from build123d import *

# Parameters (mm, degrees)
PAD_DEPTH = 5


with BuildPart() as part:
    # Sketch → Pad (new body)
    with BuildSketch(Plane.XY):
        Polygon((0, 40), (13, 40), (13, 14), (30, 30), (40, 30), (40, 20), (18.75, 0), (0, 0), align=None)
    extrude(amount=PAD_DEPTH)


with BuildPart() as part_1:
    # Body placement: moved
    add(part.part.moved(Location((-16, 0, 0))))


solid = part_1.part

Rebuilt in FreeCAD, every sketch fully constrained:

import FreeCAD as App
import Part
import Sketcher
Q = App.Units.Quantity

doc = App.newDocument("Part")
params = doc.addObject("Spreadsheet::Sheet", "Params")
for row, (alias, value) in enumerate([
    ("sketch1_width", "13 mm"),
    ("sketch1_width2", "10 mm"),
    ("sketch1_height", "40 mm"),
    ("sketch1_height2", "26 mm"),
    ("pad1_length", "5 mm"),
], start=1):
    params.set(f"A{row}", alias)
    params.set(f"B{row}", "=" + value)
    params.setAlias(f"B{row}", alias)

body = doc.addObject("PartDesign::Body", "Body")

# Sketch on XY plane
sketch1 = body.newObject("Sketcher::SketchObject", "Sketch")
sketch1.AttachmentSupport = (doc.getObject("XY_Plane"), [""])
sketch1.MapMode = "FlatFace"
sketch1.addGeometry(Part.LineSegment(App.Vector(13, 40, 0), App.Vector(0, 40, 0)), False)
sketch1.addGeometry(Part.LineSegment(App.Vector(0, 40, 0), App.Vector(0, 0, 0)), False)
sketch1.addGeometry(Part.LineSegment(App.Vector(0, 0, 0), App.Vector(18.75, 0, 0)), False)
sketch1.addGeometry(Part.LineSegment(App.Vector(18.75, 0, 0), App.Vector(40, 20, 0)), False)
sketch1.addGeometry(Part.LineSegment(App.Vector(40, 20, 0), App.Vector(40, 30, 0)), False)
sketch1.addGeometry(Part.LineSegment(App.Vector(40, 30, 0), App.Vector(30, 30, 0)), False)
sketch1.addGeometry(Part.LineSegment(App.Vector(30, 30, 0), App.Vector(13, 14, 0)), False)
sketch1.addGeometry(Part.LineSegment(App.Vector(13, 14, 0), App.Vector(13, 40, 0)), False)
sketch1.addConstraint(Sketcher.Constraint("Coincident", 0, 2, 1, 1))
sketch1.addConstraint(Sketcher.Constraint("Coincident", 1, 2, 2, 1))
sketch1.addConstraint(Sketcher.Constraint("Coincident", 2, 2, 3, 1))
sketch1.addConstraint(Sketcher.Constraint("Coincident", 3, 2, 4, 1))
sketch1.addConstraint(Sketcher.Constraint("Coincident", 4, 2, 5, 1))
sketch1.addConstraint(Sketcher.Constraint("Coincident", 5, 2, 6, 1))
sketch1.addConstraint(Sketcher.Constraint("Coincident", 6, 2, 7, 1))
sketch1.addConstraint(Sketcher.Constraint("Coincident", 7, 2, 0, 1))
sketch1.addConstraint(Sketcher.Constraint("Horizontal", 0))
sketch1.addConstraint(Sketcher.Constraint("Vertical", 1))
sketch1.addConstraint(Sketcher.Constraint("Horizontal", 2))
sketch1.addConstraint(Sketcher.Constraint("Vertical", 4))
sketch1.addConstraint(Sketcher.Constraint("Horizontal", 5))
sketch1.addConstraint(Sketcher.Constraint("Vertical", 7))
sketch1.addConstraint(Sketcher.Constraint("Coincident", 1, 2, -1, 1))
sketch1.addConstraint(Sketcher.Constraint("Parallel", 3, 6))
sketch1.addConstraint(Sketcher.Constraint("Equal", 5, 4))
sketch1.addConstraint(Sketcher.Constraint("DistanceX", 0, 2, 0, 1, Q("13 mm")))
sketch1.addConstraint(Sketcher.Constraint("DistanceX", 5, 2, 5, 1, Q("10 mm")))
sketch1.addConstraint(Sketcher.Constraint("DistanceY", 1, 2, 1, 1, Q("40 mm")))
sketch1.addConstraint(Sketcher.Constraint("DistanceY", 7, 1, 7, 2, Q("26 mm")))
sketch1.addConstraint(Sketcher.Constraint("DistanceX", -1, 1, 3, 2, Q("40 mm")))
sketch1.addConstraint(Sketcher.Constraint("DistanceY", -1, 1, 3, 2, Q("20 mm")))
sketch1.setExpression("Constraints[17]", "Params.sketch1_width")
sketch1.setExpression("Constraints[18]", "Params.sketch1_width2")
sketch1.setExpression("Constraints[19]", "Params.sketch1_height")
sketch1.setExpression("Constraints[20]", "Params.sketch1_height2")
pad1 = body.newObject("PartDesign::Pad", "Pad")
pad1.Profile = sketch1
pad1.setExpression("Length", "Params.pad1_length")
body2 = doc.addObject("PartDesign::Body", "Body001")
doc.recompute()

body.Placement = App.Placement(App.Vector(-16, 0, 0), App.Rotation(App.Vector(0, 0, 1), 0))
boolean = body2.newObject("PartDesign::Boolean", "Boolean")
boolean.Type = "Fuse"
boolean.addObjects([body])

doc.recompute()
